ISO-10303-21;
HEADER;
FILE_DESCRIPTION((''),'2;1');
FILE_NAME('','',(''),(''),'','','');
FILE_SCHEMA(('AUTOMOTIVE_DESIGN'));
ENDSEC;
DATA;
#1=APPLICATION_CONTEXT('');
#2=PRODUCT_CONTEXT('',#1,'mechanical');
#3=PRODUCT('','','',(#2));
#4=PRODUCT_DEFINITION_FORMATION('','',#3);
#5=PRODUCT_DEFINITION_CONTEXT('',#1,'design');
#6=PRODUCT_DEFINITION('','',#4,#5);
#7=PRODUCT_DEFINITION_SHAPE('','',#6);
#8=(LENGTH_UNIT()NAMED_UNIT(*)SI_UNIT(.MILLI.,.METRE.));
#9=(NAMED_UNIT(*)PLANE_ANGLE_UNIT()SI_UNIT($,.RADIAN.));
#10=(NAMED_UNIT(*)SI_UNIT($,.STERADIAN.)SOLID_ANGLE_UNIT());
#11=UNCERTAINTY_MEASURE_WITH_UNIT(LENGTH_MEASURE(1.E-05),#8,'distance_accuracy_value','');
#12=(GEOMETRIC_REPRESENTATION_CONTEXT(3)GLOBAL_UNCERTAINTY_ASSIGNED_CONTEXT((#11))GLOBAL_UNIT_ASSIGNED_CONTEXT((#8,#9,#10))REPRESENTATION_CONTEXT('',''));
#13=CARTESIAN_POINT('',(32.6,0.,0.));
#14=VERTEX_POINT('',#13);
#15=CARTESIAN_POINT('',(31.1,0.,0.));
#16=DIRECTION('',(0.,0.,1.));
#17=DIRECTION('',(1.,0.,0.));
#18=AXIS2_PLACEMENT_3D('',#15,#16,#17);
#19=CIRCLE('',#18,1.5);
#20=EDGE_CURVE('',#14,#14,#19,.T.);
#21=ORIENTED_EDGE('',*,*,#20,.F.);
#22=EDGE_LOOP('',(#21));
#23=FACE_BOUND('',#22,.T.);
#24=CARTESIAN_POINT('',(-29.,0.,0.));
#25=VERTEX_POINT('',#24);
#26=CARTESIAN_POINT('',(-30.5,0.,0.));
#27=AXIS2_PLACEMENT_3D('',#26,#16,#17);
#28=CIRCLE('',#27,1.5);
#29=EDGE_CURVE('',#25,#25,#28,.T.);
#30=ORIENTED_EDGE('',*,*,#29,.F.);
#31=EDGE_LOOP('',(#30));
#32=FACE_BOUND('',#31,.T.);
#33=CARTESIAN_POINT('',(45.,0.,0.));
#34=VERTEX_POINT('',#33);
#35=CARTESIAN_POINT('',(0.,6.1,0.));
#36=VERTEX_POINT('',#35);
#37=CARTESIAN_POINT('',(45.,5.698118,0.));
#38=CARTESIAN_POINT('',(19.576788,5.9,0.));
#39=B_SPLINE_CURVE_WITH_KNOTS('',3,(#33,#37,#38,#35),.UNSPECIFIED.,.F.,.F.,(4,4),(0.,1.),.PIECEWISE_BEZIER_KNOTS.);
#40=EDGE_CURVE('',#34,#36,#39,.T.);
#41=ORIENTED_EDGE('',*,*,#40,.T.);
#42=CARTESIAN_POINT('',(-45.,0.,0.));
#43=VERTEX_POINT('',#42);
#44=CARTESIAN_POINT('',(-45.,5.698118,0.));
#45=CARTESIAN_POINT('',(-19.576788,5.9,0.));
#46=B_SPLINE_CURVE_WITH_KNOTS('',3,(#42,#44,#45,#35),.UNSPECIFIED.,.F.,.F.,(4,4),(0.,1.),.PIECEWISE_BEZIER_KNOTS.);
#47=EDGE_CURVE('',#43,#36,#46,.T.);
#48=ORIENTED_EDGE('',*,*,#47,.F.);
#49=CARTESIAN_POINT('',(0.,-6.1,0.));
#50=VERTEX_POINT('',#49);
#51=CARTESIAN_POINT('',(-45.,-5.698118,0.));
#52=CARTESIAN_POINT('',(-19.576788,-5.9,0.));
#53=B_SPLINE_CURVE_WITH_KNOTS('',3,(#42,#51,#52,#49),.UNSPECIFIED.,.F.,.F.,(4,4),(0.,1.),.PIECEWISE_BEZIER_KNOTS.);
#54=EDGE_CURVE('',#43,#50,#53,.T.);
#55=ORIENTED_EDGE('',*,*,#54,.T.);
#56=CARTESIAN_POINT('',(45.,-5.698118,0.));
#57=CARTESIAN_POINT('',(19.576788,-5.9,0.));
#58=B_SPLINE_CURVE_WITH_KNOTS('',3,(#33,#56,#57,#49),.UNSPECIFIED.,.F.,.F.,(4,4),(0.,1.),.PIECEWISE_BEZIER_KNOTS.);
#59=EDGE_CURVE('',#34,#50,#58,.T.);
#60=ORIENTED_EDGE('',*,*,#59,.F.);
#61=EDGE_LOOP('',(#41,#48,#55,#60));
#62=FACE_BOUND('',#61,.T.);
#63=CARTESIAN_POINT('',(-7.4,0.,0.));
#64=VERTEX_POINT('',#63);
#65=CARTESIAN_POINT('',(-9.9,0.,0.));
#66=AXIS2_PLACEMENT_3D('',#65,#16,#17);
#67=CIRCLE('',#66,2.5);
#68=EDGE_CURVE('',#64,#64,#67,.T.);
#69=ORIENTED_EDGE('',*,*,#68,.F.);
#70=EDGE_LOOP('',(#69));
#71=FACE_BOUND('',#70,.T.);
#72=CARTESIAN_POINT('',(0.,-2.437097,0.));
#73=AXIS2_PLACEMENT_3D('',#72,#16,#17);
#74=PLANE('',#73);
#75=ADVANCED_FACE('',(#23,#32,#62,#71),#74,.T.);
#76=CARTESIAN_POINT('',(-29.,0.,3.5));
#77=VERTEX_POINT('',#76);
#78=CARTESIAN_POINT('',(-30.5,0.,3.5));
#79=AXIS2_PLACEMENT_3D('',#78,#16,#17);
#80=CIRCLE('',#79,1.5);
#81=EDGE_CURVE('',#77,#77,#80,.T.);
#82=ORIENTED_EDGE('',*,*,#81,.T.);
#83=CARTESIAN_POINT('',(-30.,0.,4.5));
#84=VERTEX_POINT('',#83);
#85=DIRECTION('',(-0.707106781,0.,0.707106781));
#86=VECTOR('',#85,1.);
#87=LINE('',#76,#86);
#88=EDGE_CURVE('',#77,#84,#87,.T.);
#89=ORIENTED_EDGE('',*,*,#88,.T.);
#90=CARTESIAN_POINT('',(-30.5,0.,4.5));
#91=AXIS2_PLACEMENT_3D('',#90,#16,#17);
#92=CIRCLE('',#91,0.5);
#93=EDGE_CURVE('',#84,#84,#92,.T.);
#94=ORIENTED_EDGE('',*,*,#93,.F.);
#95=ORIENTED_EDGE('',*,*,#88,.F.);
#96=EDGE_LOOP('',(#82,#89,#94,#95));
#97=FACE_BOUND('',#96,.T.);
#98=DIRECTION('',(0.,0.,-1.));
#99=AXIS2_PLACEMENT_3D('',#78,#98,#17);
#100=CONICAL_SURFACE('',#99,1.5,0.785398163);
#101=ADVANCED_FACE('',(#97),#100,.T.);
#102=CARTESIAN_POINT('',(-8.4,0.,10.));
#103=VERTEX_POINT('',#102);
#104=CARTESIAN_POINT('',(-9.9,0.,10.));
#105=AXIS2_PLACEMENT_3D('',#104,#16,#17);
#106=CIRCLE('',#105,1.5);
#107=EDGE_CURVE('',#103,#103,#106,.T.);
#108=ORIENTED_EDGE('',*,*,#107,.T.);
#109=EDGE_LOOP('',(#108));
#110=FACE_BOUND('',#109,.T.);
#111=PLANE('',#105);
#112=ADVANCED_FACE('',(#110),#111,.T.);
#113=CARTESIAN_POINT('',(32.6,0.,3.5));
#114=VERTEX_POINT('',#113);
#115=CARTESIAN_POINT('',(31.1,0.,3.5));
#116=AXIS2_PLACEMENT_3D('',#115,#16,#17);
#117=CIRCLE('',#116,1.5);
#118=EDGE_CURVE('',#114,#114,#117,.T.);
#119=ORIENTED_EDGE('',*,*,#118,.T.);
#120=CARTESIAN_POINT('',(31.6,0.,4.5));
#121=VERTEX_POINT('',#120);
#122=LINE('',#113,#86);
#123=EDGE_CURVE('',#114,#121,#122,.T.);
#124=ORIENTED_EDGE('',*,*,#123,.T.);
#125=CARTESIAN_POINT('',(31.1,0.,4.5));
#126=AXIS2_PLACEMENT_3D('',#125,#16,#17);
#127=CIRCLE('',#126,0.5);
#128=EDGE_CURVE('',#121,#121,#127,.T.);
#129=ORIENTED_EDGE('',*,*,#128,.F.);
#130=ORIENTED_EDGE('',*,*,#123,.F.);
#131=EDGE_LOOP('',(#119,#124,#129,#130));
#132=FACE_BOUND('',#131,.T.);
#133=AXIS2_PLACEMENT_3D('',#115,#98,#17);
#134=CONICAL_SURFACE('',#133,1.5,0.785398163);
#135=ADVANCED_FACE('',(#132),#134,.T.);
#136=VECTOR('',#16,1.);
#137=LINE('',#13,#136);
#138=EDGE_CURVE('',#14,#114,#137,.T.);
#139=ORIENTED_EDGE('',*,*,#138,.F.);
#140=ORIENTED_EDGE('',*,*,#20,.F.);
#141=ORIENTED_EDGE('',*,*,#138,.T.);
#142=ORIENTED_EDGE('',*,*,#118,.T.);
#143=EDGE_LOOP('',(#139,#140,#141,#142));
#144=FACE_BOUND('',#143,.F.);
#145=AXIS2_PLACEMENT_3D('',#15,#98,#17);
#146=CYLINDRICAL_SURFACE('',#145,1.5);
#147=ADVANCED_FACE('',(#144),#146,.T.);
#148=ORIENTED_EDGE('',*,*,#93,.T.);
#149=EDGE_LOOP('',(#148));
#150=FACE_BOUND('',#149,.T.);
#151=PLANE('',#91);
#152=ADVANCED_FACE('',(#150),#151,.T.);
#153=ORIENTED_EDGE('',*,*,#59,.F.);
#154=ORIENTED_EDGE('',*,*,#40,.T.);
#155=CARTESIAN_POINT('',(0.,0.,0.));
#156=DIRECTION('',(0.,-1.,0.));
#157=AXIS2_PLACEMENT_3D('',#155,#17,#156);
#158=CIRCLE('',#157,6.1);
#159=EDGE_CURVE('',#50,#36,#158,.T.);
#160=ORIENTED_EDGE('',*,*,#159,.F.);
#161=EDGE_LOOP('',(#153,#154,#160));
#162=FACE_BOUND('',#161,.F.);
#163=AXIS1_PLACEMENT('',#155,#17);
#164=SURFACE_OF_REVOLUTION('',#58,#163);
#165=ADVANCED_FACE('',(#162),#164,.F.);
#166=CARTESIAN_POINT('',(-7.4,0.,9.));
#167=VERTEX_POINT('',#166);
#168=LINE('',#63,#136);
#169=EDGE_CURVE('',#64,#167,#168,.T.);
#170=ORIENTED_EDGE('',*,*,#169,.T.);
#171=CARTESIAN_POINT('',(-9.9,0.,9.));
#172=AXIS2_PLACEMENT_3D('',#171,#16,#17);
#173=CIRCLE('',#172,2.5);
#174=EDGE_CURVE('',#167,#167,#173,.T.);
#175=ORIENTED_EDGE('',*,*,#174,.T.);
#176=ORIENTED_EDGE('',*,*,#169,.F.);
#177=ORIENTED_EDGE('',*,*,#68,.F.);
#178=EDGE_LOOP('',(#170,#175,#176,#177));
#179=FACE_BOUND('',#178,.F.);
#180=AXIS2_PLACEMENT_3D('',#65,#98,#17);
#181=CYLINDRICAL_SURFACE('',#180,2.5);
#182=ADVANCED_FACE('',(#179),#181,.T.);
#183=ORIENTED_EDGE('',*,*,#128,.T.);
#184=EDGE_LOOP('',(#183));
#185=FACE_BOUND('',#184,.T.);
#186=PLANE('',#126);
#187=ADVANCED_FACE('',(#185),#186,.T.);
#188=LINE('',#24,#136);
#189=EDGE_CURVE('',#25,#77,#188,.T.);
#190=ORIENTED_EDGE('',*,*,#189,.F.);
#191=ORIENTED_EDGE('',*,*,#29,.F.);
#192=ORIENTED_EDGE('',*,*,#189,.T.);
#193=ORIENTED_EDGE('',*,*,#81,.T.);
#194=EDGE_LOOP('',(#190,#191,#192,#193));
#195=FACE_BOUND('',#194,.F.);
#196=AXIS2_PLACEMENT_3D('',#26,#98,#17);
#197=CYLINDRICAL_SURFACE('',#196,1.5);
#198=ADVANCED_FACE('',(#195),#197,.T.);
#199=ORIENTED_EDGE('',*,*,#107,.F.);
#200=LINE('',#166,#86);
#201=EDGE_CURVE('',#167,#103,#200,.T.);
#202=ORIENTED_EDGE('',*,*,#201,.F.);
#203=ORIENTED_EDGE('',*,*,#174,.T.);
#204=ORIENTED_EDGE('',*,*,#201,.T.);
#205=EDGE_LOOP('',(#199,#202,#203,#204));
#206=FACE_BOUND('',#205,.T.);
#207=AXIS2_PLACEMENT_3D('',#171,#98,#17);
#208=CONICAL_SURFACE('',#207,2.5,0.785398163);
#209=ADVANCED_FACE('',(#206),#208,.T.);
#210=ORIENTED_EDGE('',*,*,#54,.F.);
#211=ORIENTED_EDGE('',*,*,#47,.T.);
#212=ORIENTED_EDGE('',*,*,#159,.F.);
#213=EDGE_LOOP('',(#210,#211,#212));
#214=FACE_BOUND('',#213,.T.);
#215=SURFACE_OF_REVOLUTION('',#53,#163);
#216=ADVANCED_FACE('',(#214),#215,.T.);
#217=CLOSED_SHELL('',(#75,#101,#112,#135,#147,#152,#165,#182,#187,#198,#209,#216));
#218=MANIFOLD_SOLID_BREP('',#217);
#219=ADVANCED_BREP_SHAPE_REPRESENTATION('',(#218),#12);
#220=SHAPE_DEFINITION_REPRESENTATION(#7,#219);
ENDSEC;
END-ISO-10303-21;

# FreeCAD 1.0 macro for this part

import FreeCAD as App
import Part
import Sketcher


def edges_at(feature, points):
    """Names of the edges that pass closest to the given points."""
    edges = feature.Shape.Edges
    near = lambda p: min(range(len(edges)), key=lambda i: edges[i].distToShape(Part.Vertex(*p))[0])
    return sorted({f"Edge{near(p) + 1}" for p in points})

doc = App.newDocument("Part")
body = doc.addObject("PartDesign::Body", "Body")

sketch1 = body.newObject("Sketcher::SketchObject", "Sketch")
sketch1.AttachmentSupport = (doc.getObject("XY_Plane"), [""])
sketch1.MapMode = "FlatFace"
sketch1.addGeometry([
    Part.LineSegment(App.Vector(45, 0, 0), App.Vector(-45, 0, 0)),
    Part.BSplineCurve([App.Vector(-45, 0, 0), App.Vector(-45, -5.698118, 0), App.Vector(-19.576788, -5.9, 0), App.Vector(0, -6.1, 0)], [4, 4], [0, 1], False, 3, [1, 1, 1, 1], False),
    Part.BSplineCurve([App.Vector(45, 0, 0), App.Vector(45, -5.698118, 0), App.Vector(19.576788, -5.9, 0), App.Vector(0, -6.1, 0)], [4, 4], [0, 1], False, 3, [1, 1, 1, 1], False),
], False)
sketch1.addConstraint([
    Sketcher.Constraint("Block", 1),
    Sketcher.Constraint("Block", 2),
    Sketcher.Constraint("Coincident", 0, 2, 1, 1),
    Sketcher.Constraint("Coincident", 2, 1, 0, 1),
])
revolution = body.newObject("PartDesign::Revolution", "Revolution")
revolution.Profile = sketch1
revolution.ReferenceAxis = (sketch1, ["H_Axis"])
revolution.Angle = 180

sketch2 = body.newObject("Sketcher::SketchObject", "Sketch001")
sketch2.AttachmentSupport = (doc.getObject("XY_Plane"), [""])
sketch2.MapMode = "FlatFace"
sketch2.addGeometry([
    Part.Circle(App.Vector(-30.5, 0, 0), App.Vector(0, 0, 1), 1.5),
    Part.Circle(App.Vector(31.1, 0, 0), App.Vector(0, 0, 1), 1.5),
], False)
sketch2.addConstraint([
    Sketcher.Constraint("Equal", 0, 1),
    Sketcher.Constraint("PointOnObject", 0, 3, -1),
    Sketcher.Constraint("PointOnObject", 1, 3, -1),
    Sketcher.Constraint("Diameter", 0, 3.0),
    Sketcher.Constraint("DistanceX", 0, 3, -1, 1, 30.5),
    Sketcher.Constraint("DistanceX", -1, 1, 1, 3, 31.1),
])
pad1 = body.newObject("PartDesign::Pad", "Pad")
pad1.Profile = sketch2
pad1.Length = 4.5

sketch3 = body.newObject("Sketcher::SketchObject", "Sketch002")
sketch3.AttachmentSupport = (doc.getObject("XY_Plane"), [""])
sketch3.MapMode = "FlatFace"
sketch3.addGeometry(Part.Circle(App.Vector(-9.9, 0, 0), App.Vector(0, 0, 1), 2.5), False)
sketch3.addConstraint([
    Sketcher.Constraint("PointOnObject", 0, 3, -1),
    Sketcher.Constraint("Diameter", 0, 5.0),
    Sketcher.Constraint("DistanceX", 0, 3, -1, 1, 9.9),
])
pad2 = body.newObject("PartDesign::Pad", "Pad001")
pad2.Profile = sketch3
pad2.Length = 10
doc.recompute()

chamfer = body.newObject("PartDesign::Chamfer", "Chamfer")
chamfer.Base = (pad2, edges_at(pad2, [(-32, 0, 4.5), (-12.4, 0, 10), (29.6, 0, 4.5)]))
chamfer.Size = 1

doc.recompute()
